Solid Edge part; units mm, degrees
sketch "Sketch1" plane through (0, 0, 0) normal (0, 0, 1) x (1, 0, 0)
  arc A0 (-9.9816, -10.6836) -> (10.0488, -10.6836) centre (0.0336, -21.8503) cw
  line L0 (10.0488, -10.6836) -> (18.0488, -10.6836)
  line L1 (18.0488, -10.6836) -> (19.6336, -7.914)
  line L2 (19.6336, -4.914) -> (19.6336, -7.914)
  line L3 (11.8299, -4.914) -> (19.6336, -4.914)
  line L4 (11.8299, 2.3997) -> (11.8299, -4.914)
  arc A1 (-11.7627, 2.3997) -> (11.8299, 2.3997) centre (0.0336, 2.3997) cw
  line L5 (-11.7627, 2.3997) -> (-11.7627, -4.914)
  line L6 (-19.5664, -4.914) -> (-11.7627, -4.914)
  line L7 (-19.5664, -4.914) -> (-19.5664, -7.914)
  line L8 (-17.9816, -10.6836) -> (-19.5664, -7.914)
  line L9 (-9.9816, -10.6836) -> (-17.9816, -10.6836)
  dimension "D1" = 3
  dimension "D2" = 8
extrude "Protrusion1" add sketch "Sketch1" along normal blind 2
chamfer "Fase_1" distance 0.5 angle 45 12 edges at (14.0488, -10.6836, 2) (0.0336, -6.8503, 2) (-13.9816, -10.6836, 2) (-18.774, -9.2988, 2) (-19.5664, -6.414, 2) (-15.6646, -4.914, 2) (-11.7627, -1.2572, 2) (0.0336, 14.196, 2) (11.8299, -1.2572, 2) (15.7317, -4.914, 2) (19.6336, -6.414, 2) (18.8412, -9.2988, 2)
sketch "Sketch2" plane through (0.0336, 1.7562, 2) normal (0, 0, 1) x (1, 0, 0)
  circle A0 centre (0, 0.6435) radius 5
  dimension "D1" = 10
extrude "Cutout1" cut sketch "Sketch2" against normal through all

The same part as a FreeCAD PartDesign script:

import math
import FreeCAD as App
import Part
import Sketcher
from FreeCAD import Vector


def edges_at(feature, points):
    """Names of the edges that pass closest to the given points."""
    edges = feature.Shape.Edges
    near = lambda p: min(range(len(edges)), key=lambda i: edges[i].distToShape(Part.Vertex(*p))[0])
    return sorted({f"Edge{near(p) + 1}" for p in points})

doc = App.newDocument("Part")
body = doc.addObject("PartDesign::Body", "Body")

# Sketch on XY plane
sketch1 = doc.addObject("Sketcher::SketchObject", "Sketch")
body.addObject(sketch1)
sketch1.AttachmentSupport = (doc.XY_Plane, [""])
sketch1.MapMode = "FlatFace"
sketch1.addGeometry(Part.LineSegment(Vector(-18, -10.7, 0), Vector(-10, -10.7, 0)), False)
sketch1.addGeometry(Part.ArcOfCircle(Part.Circle(Vector(0, -21.9, 0), Vector(0, 0, 1), 15), math.radians(48), math.radians(132)), False)
sketch1.addGeometry(Part.LineSegment(Vector(10, -10.7, 0), Vector(18, -10.7, 0)), False)
sketch1.addGeometry(Part.LineSegment(Vector(18, -10.7, 0), Vector(19.6, -7.9, 0)), False)
sketch1.addGeometry(Part.LineSegment(Vector(19.6, -7.9, 0), Vector(19.6, -4.9, 0)), False)
sketch1.addGeometry(Part.LineSegment(Vector(19.6, -4.9, 0), Vector(11.8, -4.9, 0)), False)
sketch1.addGeometry(Part.LineSegment(Vector(11.8, -4.9, 0), Vector(11.8, 2.4, 0)), False)
sketch1.addGeometry(Part.ArcOfCircle(Part.Circle(Vector(0, 2.4, 0), Vector(0, 0, 1), 11.8), math.radians(0), math.radians(180)), False)
sketch1.addGeometry(Part.LineSegment(Vector(-11.8, 2.4, 0), Vector(-11.8, -4.9, 0)), False)
sketch1.addGeometry(Part.LineSegment(Vector(-11.8, -4.9, 0), Vector(-19.6, -4.9, 0)), False)
sketch1.addGeometry(Part.LineSegment(Vector(-19.6, -4.9, 0), Vector(-19.6, -7.9, 0)), False)
sketch1.addGeometry(Part.LineSegment(Vector(-19.6, -7.9, 0), Vector(-18, -10.7, 0)), False)
sketch1.addConstraint(Sketcher.Constraint("Coincident", 0, 2, 1, 2))
sketch1.addConstraint(Sketcher.Constraint("Coincident", 1, 1, 2, 1))
sketch1.addConstraint(Sketcher.Constraint("Coincident", 2, 2, 3, 1))
sketch1.addConstraint(Sketcher.Constraint("Coincident", 3, 2, 4, 1))
sketch1.addConstraint(Sketcher.Constraint("Coincident", 4, 2, 5, 1))
sketch1.addConstraint(Sketcher.Constraint("Coincident", 5, 2, 6, 1))
sketch1.addConstraint(Sketcher.Constraint("Tangent", 6, 2, 7, 1))
sketch1.addConstraint(Sketcher.Constraint("Tangent", 7, 2, 8, 1))
sketch1.addConstraint(Sketcher.Constraint("Coincident", 8, 2, 9, 1))
sketch1.addConstraint(Sketcher.Constraint("Coincident", 9, 2, 10, 1))
sketch1.addConstraint(Sketcher.Constraint("Coincident", 10, 2, 11, 1))
sketch1.addConstraint(Sketcher.Constraint("Coincident", 11, 2, 0, 1))
sketch1.addConstraint(Sketcher.Constraint("Horizontal", 0))
sketch1.addConstraint(Sketcher.Constraint("Horizontal", 2))
sketch1.addConstraint(Sketcher.Constraint("Vertical", 4))
sketch1.addConstraint(Sketcher.Constraint("Horizontal", 5))
sketch1.addConstraint(Sketcher.Constraint("Vertical", 6))
sketch1.addConstraint(Sketcher.Constraint("Vertical", 8))
sketch1.addConstraint(Sketcher.Constraint("Horizontal", 9))
sketch1.addConstraint(Sketcher.Constraint("Vertical", 10))
sketch1.addConstraint(Sketcher.Constraint("Horizontal", 0, 2, 1, 1))
sketch1.addConstraint(Sketcher.Constraint("Horizontal", 5, 2, 8, 2))
sketch1.addConstraint(Sketcher.Constraint("Horizontal", 3, 2, 10, 2))
sketch1.addConstraint(Sketcher.Constraint("Vertical", 1, 3, 7, 3))
sketch1.addConstraint(Sketcher.Constraint("Equal", 0, 2))
sketch1.addConstraint(Sketcher.Constraint("Equal", 5, 9))
sketch1.addConstraint(Sketcher.Constraint("Radius", 1, 15.0))
sketch1.addConstraint(Sketcher.Constraint("DistanceX", 0, 1, 0, 2, 8.0))
sketch1.addConstraint(Sketcher.Constraint("DistanceY", 4, 1, 4, 2, 3.0))
sketch1.addConstraint(Sketcher.Constraint("DistanceX", -1, 1, 1, 1, 10.0488))
sketch1.addConstraint(Sketcher.Constraint("DistanceX", -1, 1, 3, 2, 19.6336))
sketch1.addConstraint(Sketcher.Constraint("Radius", 7, 11.7963))
sketch1.addConstraint(Sketcher.Constraint("DistanceX", 7, 3, 3, 2, 19.6))
sketch1.addConstraint(Sketcher.Constraint("DistanceY", 1, 3, 7, 3, 24.25))
sketch1.addConstraint(Sketcher.Constraint("Distance", 3, 3.191))
sketch1.addConstraint(Sketcher.Constraint("DistanceY", 3, 2, -1, 1, 7.914))
pad1 = doc.addObject("PartDesign::Pad", "Pad")
body.addObject(pad1)
pad1.Profile = sketch1
pad1.Length = 2
doc.recompute()

chamfer = doc.addObject("PartDesign::Chamfer", "Chamfer")
body.addObject(chamfer)
chamfer.Base = (pad1, edges_at(pad1, [
    (14.049, -10.684, 2),
    (0.034, -6.85, 2),
    (-13.982, -10.684, 2),
    (-18.774, -9.299, 2),
    (-19.566, -6.414, 2),
    (-15.665, -4.914, 2),
    (-11.763, -1.257, 2),
    (0.034, 14.196, 2),
    (11.83, -1.257, 2),
    (15.732, -4.914, 2),
    (19.634, -6.414, 2),
    (18.841, -9.299, 2),
]))
chamfer.Size = 0.5

# Sketch on XY plane
sketch2 = doc.addObject("Sketcher::SketchObject", "Sketch001")
body.addObject(sketch2)
sketch2.AttachmentSupport = (doc.XY_Plane, [""])
sketch2.MapMode = "FlatFace"
sketch2.AttachmentOffset = App.Placement(Vector(0, 0, 2), App.Rotation())
sketch2.addGeometry(Part.Circle(Vector(0, 2, 0), Vector(0, 0, 1), 5), False)
sketch2.addConstraint(Sketcher.Constraint("Diameter", 0, 10.0))
sketch2.addConstraint(Sketcher.Constraint("DistanceX", -1, 1, 0, 3, 0.0336))
sketch2.addConstraint(Sketcher.Constraint("DistanceY", -1, 1, 0, 3, 2.3997))
pocket1 = doc.addObject("PartDesign::Pocket", "Pocket")
body.addObject(pocket1)
pocket1.Profile = sketch2
pocket1.Type = "ThroughAll"

doc.recompute()
